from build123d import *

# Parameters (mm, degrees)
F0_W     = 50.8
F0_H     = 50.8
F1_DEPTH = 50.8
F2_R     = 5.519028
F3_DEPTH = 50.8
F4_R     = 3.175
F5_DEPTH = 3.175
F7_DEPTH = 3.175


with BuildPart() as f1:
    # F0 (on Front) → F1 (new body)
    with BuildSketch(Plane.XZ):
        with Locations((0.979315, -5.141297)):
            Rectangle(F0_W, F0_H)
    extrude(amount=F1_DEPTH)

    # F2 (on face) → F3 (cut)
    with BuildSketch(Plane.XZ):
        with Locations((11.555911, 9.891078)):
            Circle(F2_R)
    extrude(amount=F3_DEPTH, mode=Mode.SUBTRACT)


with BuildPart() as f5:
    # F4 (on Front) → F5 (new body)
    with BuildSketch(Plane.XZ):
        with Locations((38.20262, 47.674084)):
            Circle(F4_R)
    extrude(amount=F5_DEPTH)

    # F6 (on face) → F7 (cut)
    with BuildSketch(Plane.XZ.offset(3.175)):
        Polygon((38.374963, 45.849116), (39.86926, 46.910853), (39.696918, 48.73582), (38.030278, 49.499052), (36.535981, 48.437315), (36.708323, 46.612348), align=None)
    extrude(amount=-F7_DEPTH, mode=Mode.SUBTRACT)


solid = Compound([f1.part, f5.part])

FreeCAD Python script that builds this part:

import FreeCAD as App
import Part
import Sketcher

V = App.Vector
Q = App.Units.Quantity

doc = App.newDocument("Part")
body = doc.addObject("PartDesign::Body", "Body")

# Sketch on XZ plane
sketch1 = body.newObject("Sketcher::SketchObject", "Sketch")
sketch1.AttachmentSupport = (doc.getObject("XZ_Plane"), [""])
sketch1.MapMode = "FlatFace"
sketch1.addGeometry(Part.LineSegment(V(-24.420685, 20.258703, 0), V(-24.420685, -30.541297, 0)), False)
sketch1.addGeometry(Part.LineSegment(V(-24.420685, -30.541297, 0), V(26.379315, -30.541297, 0)), False)
sketch1.addGeometry(Part.LineSegment(V(26.379315, -30.541297, 0), V(26.379315, 20.258703, 0)), False)
sketch1.addGeometry(Part.LineSegment(V(26.379315, 20.258703, 0), V(-24.420685, 20.258703, 0)), False)
sketch1.addConstraint(Sketcher.Constraint("Coincident", 0, 2, 1, 1))
sketch1.addConstraint(Sketcher.Constraint("Coincident", 1, 2, 2, 1))
sketch1.addConstraint(Sketcher.Constraint("Coincident", 2, 2, 3, 1))
sketch1.addConstraint(Sketcher.Constraint("Coincident", 3, 2, 0, 1))
sketch1.addConstraint(Sketcher.Constraint("Vertical", 0))
sketch1.addConstraint(Sketcher.Constraint("Horizontal", 1))
sketch1.addConstraint(Sketcher.Constraint("Vertical", 2))
sketch1.addConstraint(Sketcher.Constraint("Horizontal", 3))
sketch1.addConstraint(Sketcher.Constraint("Equal", 3, 0))
sketch1.addConstraint(Sketcher.Constraint("DistanceX", 1, 1, 1, 2, Q("2 in")))
sketch1.addConstraint(Sketcher.Constraint("DistanceX", 0, 2, -1, 1, Q("24.420685 mm")))
sketch1.addConstraint(Sketcher.Constraint("DistanceY", 0, 2, -1, 1, Q("30.541297 mm")))
pad1 = body.newObject("PartDesign::Pad", "Pad")
pad1.Profile = sketch1
pad1.Length = Q("2 in")

# Sketch on XZ plane
sketch2 = body.newObject("Sketcher::SketchObject", "Sketch001")
sketch2.AttachmentSupport = (doc.getObject("XZ_Plane"), [""])
sketch2.MapMode = "FlatFace"
sketch2.addGeometry(Part.Circle(V(11.555911, 9.891078, 0), V(0, 0, 1), 5.519028), False)
sketch2.addConstraint(Sketcher.Constraint("Diameter", 0, Q("11.038056 mm")))
sketch2.addConstraint(Sketcher.Constraint("DistanceX", -1, 1, 0, 3, Q("11.555911 mm")))
sketch2.addConstraint(Sketcher.Constraint("DistanceY", -1, 1, 0, 3, Q("9.891078 mm")))
pocket1 = body.newObject("PartDesign::Pocket", "Pocket")
pocket1.Profile = sketch2
pocket1.Length = Q("2 in")
pocket1.Reversed = True
body2 = doc.addObject("PartDesign::Body", "Body001")

# Sketch on XZ plane
sketch3 = body2.newObject("Sketcher::SketchObject", "Sketch002")
sketch3.AttachmentSupport = (doc.getObject("XZ_Plane001"), [""])
sketch3.MapMode = "FlatFace"
sketch3.addGeometry(Part.Circle(V(38.20262, 47.674084, 0), V(0, 0, 1), 3.175), False)
sketch3.addConstraint(Sketcher.Constraint("Diameter", 0, Q("0.25 in")))
sketch3.addConstraint(Sketcher.Constraint("DistanceX", -1, 1, 0, 3, Q("38.20262 mm")))
sketch3.addConstraint(Sketcher.Constraint("DistanceY", -1, 1, 0, 3, Q("47.674084 mm")))
pad2 = body2.newObject("PartDesign::Pad", "Pad001")
pad2.Profile = sketch3
pad2.Length = Q("0.125 in")

# Sketch on XZ plane
sketch4 = body2.newObject("Sketcher::SketchObject", "Sketch003")
sketch4.AttachmentSupport = (doc.getObject("XZ_Plane001"), [""])
sketch4.MapMode = "FlatFace"
sketch4.AttachmentOffset = App.Placement(V(0, 0, 0.125 * 25.4), App.Rotation())
sketch4.addGeometry(Part.LineSegment(V(38.374963, 45.849116, 0), V(39.86926, 46.910853, 0)), False)
sketch4.addGeometry(Part.LineSegment(V(39.86926, 46.910853, 0), V(39.696918, 48.73582, 0)), False)
sketch4.addGeometry(Part.LineSegment(V(39.696918, 48.73582, 0), V(38.030278, 49.499052, 0)), False)
sketch4.addGeometry(Part.LineSegment(V(38.030278, 49.499052, 0), V(36.535981, 48.437315, 0)), False)
sketch4.addGeometry(Part.LineSegment(V(36.535981, 48.437315, 0), V(36.708323, 46.612348, 0)), False)
sketch4.addGeometry(Part.LineSegment(V(36.708323, 46.612348, 0), V(38.374963, 45.849116, 0)), False)
sketch4.addConstraint(Sketcher.Constraint("Coincident", 0, 2, 1, 1))
sketch4.addConstraint(Sketcher.Constraint("Coincident", 1, 2, 2, 1))
sketch4.addConstraint(Sketcher.Constraint("Coincident", 2, 2, 3, 1))
sketch4.addConstraint(Sketcher.Constraint("Coincident", 3, 2, 4, 1))
sketch4.addConstraint(Sketcher.Constraint("Coincident", 4, 2, 5, 1))
sketch4.addConstraint(Sketcher.Constraint("Coincident", 5, 2, 0, 1))
sketch4.addConstraint(Sketcher.Constraint("Parallel", 0, 3))
sketch4.addConstraint(Sketcher.Constraint("Parallel", 1, 4))
sketch4.addConstraint(Sketcher.Constraint("Parallel", 2, 5))
sketch4.addConstraint(Sketcher.Constraint("Equal", 0, 1))
sketch4.addConstraint(Sketcher.Constraint("Equal", 1, 2))
sketch4.addConstraint(Sketcher.Constraint("Equal", 2, 3))
sketch4.addConstraint(Sketcher.Constraint("DistanceY", 0, 2, 2, 2, Q("2.588199 mm")))
sketch4.addConstraint(Sketcher.Constraint("Distance", 2, Q("1.833088 mm")))
sketch4.addConstraint(Sketcher.Constraint("DistanceX", -1, 1, 0, 2, Q("39.86926 mm")))
sketch4.addConstraint(Sketcher.Constraint("DistanceY", -1, 1, 1, 2, Q("48.73582 mm")))
sketch4.addConstraint(Sketcher.Constraint("DistanceX", -1, 1, 2, 2, Q("38.030278 mm")))
sketch4.addConstraint(Sketcher.Constraint("DistanceX", -1, 1, 3, 2, Q("36.535981 mm")))
pocket2 = body2.newObject("PartDesign::Pocket", "Pocket001")
pocket2.Profile = sketch4
pocket2.Length = Q("0.125 in")

doc.recompute()
